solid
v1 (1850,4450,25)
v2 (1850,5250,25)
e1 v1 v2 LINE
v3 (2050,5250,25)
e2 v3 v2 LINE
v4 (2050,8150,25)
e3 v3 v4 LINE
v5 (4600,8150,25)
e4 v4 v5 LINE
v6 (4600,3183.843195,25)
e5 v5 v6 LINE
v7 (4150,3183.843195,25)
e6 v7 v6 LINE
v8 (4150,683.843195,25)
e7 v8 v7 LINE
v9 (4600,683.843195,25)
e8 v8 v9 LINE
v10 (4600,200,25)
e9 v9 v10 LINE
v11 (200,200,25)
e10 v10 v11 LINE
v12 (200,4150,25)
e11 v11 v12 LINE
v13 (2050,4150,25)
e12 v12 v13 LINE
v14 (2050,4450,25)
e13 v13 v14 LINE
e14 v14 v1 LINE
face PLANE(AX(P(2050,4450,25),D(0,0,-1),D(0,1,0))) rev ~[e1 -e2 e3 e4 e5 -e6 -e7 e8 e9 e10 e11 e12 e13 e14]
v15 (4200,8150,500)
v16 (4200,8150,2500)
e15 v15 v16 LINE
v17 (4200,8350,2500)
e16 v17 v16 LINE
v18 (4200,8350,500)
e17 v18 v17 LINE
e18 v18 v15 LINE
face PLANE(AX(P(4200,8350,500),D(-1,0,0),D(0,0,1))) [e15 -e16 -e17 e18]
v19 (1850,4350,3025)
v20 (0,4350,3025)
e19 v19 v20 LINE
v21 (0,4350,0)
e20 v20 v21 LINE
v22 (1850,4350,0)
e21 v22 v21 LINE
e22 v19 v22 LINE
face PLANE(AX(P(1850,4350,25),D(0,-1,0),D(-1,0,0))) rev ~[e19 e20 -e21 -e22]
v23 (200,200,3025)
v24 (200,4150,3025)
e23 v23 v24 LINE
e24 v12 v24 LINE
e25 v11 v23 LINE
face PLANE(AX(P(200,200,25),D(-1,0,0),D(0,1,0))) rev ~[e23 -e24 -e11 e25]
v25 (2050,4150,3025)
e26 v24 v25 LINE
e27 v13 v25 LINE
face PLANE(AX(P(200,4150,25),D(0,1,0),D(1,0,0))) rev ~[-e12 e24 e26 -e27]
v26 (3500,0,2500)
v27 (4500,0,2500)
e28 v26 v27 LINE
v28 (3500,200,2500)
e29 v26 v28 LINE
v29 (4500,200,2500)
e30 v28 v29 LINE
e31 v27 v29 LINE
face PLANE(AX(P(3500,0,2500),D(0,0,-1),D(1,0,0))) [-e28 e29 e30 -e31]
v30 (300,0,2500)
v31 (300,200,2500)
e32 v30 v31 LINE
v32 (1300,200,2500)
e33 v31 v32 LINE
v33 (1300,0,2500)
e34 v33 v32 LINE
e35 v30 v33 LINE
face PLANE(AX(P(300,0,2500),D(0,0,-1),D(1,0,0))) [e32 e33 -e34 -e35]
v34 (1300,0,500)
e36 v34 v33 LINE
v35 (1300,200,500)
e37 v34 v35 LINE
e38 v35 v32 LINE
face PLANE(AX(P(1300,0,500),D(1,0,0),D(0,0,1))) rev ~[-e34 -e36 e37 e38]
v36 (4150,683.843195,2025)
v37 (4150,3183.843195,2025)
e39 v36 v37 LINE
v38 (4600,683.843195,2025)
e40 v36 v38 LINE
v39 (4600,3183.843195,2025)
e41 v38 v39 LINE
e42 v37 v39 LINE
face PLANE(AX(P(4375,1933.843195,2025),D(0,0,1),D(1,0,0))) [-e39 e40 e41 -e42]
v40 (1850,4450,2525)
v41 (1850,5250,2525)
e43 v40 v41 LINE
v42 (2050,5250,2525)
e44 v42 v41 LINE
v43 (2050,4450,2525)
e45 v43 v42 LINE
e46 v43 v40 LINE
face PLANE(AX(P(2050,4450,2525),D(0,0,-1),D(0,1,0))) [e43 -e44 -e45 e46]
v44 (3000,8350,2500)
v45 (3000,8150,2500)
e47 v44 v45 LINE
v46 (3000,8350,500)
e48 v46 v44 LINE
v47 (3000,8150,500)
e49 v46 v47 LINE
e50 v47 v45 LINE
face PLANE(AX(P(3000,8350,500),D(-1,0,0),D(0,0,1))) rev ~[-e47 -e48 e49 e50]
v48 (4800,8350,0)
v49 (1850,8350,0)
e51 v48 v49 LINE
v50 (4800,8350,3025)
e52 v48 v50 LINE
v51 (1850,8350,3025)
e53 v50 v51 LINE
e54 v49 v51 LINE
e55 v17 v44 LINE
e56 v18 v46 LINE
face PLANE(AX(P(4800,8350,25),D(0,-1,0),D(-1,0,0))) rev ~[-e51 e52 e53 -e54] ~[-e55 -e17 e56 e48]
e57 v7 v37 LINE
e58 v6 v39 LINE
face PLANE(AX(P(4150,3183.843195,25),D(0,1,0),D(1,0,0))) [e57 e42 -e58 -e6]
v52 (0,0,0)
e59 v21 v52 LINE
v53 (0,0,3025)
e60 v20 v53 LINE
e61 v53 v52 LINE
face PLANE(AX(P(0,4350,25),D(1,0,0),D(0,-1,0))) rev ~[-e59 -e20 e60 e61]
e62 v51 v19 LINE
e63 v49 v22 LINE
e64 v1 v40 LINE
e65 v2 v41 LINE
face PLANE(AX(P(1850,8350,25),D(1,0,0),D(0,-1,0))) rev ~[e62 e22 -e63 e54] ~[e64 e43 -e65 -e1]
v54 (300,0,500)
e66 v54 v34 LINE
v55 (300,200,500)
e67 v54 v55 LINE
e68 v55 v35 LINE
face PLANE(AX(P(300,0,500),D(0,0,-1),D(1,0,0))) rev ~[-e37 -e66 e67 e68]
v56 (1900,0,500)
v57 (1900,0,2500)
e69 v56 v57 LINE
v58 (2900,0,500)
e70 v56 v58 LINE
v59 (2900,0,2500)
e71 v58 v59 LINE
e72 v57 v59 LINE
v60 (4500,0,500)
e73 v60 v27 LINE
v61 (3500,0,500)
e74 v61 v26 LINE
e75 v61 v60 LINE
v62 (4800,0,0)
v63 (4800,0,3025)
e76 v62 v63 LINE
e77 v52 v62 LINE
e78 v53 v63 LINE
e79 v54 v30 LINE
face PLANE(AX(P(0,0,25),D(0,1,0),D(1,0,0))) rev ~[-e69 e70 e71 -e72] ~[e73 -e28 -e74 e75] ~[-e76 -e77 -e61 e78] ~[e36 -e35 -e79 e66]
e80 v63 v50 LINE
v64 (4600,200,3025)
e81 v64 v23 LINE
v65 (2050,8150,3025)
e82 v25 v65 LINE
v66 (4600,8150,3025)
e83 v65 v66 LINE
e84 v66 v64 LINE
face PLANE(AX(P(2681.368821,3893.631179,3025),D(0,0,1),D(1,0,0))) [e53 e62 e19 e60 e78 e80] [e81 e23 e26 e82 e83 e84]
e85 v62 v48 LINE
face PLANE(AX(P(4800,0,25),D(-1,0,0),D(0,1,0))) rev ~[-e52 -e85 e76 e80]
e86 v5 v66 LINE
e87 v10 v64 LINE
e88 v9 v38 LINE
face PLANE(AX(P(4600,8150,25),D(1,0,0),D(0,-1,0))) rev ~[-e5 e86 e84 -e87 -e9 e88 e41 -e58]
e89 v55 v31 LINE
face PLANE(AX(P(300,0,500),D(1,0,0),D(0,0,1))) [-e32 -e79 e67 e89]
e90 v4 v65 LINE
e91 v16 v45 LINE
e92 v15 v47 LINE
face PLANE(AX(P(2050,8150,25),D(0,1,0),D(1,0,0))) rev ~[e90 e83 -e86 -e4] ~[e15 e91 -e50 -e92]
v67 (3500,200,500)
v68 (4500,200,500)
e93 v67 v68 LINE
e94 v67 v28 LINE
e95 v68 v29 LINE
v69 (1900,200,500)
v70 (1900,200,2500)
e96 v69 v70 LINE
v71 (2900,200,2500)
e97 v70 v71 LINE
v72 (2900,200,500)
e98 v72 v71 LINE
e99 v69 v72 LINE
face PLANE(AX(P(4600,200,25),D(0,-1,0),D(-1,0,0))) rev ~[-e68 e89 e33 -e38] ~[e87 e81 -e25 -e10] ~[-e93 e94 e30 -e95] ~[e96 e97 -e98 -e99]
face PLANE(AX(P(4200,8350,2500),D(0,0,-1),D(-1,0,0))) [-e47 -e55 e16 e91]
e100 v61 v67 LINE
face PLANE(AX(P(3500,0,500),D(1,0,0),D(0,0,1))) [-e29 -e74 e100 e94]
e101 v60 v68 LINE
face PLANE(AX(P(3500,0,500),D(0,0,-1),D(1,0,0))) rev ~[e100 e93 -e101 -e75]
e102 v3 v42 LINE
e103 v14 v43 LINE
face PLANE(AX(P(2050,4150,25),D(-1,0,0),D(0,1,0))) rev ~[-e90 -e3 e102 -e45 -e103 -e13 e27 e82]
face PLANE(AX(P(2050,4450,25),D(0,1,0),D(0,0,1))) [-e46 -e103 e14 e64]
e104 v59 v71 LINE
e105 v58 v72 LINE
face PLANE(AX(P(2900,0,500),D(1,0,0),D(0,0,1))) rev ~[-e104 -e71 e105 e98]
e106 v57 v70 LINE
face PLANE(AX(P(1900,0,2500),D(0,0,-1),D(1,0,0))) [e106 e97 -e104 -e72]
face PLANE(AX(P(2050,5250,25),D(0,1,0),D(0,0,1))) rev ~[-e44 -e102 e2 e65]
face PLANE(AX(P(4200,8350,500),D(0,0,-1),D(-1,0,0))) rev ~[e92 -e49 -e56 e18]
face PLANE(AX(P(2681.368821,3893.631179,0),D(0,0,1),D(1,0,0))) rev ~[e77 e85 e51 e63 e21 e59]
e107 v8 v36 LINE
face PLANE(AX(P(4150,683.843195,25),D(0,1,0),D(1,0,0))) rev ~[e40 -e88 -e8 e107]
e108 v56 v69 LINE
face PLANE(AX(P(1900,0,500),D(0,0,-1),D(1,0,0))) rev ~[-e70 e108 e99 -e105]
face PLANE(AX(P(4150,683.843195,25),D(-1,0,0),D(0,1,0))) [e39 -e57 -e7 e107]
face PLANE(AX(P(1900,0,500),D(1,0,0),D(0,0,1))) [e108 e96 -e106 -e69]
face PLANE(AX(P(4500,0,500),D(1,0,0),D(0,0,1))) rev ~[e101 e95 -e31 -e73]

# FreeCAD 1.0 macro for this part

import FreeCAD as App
import Part
import Sketcher

doc = App.newDocument("Part")
body = doc.addObject("PartDesign::Body", "Body")

sketch1 = doc.addObject("Sketcher::SketchObject", "Sketch")
body.addObject(sketch1)
sketch1.AttachmentSupport = (doc.XY_Plane, [""])
sketch1.MapMode = "FlatFace"
sketch1.addGeometry(Part.LineSegment(App.Vector(0, 4350, 0), App.Vector(0, 0, 0)), False)
sketch1.addGeometry(Part.LineSegment(App.Vector(0, 0, 0), App.Vector(4800, 0, 0)), False)
sketch1.addGeometry(Part.LineSegment(App.Vector(4800, 0, 0), App.Vector(4800, 8350, 0)), False)
sketch1.addGeometry(Part.LineSegment(App.Vector(4800, 8350, 0), App.Vector(1850, 8350, 0)), False)
sketch1.addGeometry(Part.LineSegment(App.Vector(1850, 8350, 0), App.Vector(1850, 4350, 0)), False)
sketch1.addGeometry(Part.LineSegment(App.Vector(1850, 4350, 0), App.Vector(0, 4350, 0)), False)
sketch1.addConstraint(Sketcher.Constraint("Coincident", 0, 2, 1, 1))
sketch1.addConstraint(Sketcher.Constraint("Coincident", 1, 2, 2, 1))
sketch1.addConstraint(Sketcher.Constraint("Coincident", 2, 2, 3, 1))
sketch1.addConstraint(Sketcher.Constraint("Coincident", 3, 2, 4, 1))
sketch1.addConstraint(Sketcher.Constraint("Coincident", 4, 2, 5, 1))
sketch1.addConstraint(Sketcher.Constraint("Coincident", 5, 2, 0, 1))
sketch1.addConstraint(Sketcher.Constraint("Vertical", 0))
sketch1.addConstraint(Sketcher.Constraint("Horizontal", 1))
sketch1.addConstraint(Sketcher.Constraint("Vertical", 2))
sketch1.addConstraint(Sketcher.Constraint("Horizontal", 3))
sketch1.addConstraint(Sketcher.Constraint("Vertical", 4))
sketch1.addConstraint(Sketcher.Constraint("Horizontal", 5))
sketch1.addConstraint(Sketcher.Constraint("Coincident", 0, 2, -1, 1))
sketch1.addConstraint(Sketcher.Constraint("DistanceX", 1, 1, 1, 2, 4800.0))
sketch1.addConstraint(Sketcher.Constraint("DistanceX", 3, 2, 3, 1, 2950.0))
sketch1.addConstraint(Sketcher.Constraint("DistanceY", 0, 2, 0, 1, 4350.0))
sketch1.addConstraint(Sketcher.Constraint("DistanceY", 2, 1, 2, 2, 8350.0))
pad1 = doc.addObject("PartDesign::Pad", "Pad")
body.addObject(pad1)
pad1.Profile = sketch1
pad1.Length = 25

sketch2 = doc.addObject("Sketcher::SketchObject", "Sketch001")
body.addObject(sketch2)
sketch2.AttachmentSupport = (doc.XY_Plane, [""])
sketch2.MapMode = "FlatFace"
sketch2.AttachmentOffset = App.Placement(App.Vector(0, 0, 25), App.Rotation())
sketch2.addGeometry(Part.LineSegment(App.Vector(0, 0, 0), App.Vector(4800, 0, 0)), False)
sketch2.addGeometry(Part.LineSegment(App.Vector(4800, 0, 0), App.Vector(4800, 8350, 0)), False)
sketch2.addGeometry(Part.LineSegment(App.Vector(4800, 8350, 0), App.Vector(1850, 8350, 0)), False)
sketch2.addGeometry(Part.LineSegment(App.Vector(1850, 8350, 0), App.Vector(1850, 4350, 0)), False)
sketch2.addGeometry(Part.LineSegment(App.Vector(1850, 4350, 0), App.Vector(0, 4350, 0)), False)
sketch2.addGeometry(Part.LineSegment(App.Vector(0, 4350, 0), App.Vector(0, 0, 0)), False)
sketch2.addGeometry(Part.LineSegment(App.Vector(2050, 8150, 0), App.Vector(4600, 8150, 0)), False)
sketch2.addGeometry(Part.LineSegment(App.Vector(4600, 8150, 0), App.Vector(4600, 200, 0)), False)
sketch2.addGeometry(Part.LineSegment(App.Vector(4600, 200, 0), App.Vector(200, 200, 0)), False)
sketch2.addGeometry(Part.LineSegment(App.Vector(200, 200, 0), App.Vector(200, 4150, 0)), False)
sketch2.addGeometry(Part.LineSegment(App.Vector(200, 4150, 0), App.Vector(2050, 4150, 0)), False)
sketch2.addGeometry(Part.LineSegment(App.Vector(2050, 4150, 0), App.Vector(2050, 8150, 0)), False)
sketch2.addConstraint(Sketcher.Constraint("Coincident", 0, 2, 1, 1))
sketch2.addConstraint(Sketcher.Constraint("Coincident", 1, 2, 2, 1))
sketch2.addConstraint(Sketcher.Constraint("Coincident", 2, 2, 3, 1))
sketch2.addConstraint(Sketcher.Constraint("Coincident", 3, 2, 4, 1))
sketch2.addConstraint(Sketcher.Constraint("Coincident", 4, 2, 5, 1))
sketch2.addConstraint(Sketcher.Constraint("Coincident", 5, 2, 0, 1))
sketch2.addConstraint(Sketcher.Constraint("Coincident", 6, 2, 7, 1))
sketch2.addConstraint(Sketcher.Constraint("Coincident", 7, 2, 8, 1))
sketch2.addConstraint(Sketcher.Constraint("Coincident", 8, 2, 9, 1))
sketch2.addConstraint(Sketcher.Constraint("Coincident", 9, 2, 10, 1))
sketch2.addConstraint(Sketcher.Constraint("Coincident", 10, 2, 11, 1))
sketch2.addConstraint(Sketcher.Constraint("Coincident", 11, 2, 6, 1))
sketch2.addConstraint(Sketcher.Constraint("Horizontal", 0))
sketch2.addConstraint(Sketcher.Constraint("Vertical", 1))
sketch2.addConstraint(Sketcher.Constraint("Horizontal", 2))
sketch2.addConstraint(Sketcher.Constraint("Vertical", 3))
sketch2.addConstraint(Sketcher.Constraint("Horizontal", 4))
sketch2.addConstraint(Sketcher.Constraint("Vertical", 5))
sketch2.addConstraint(Sketcher.Constraint("Horizontal", 6))
sketch2.addConstraint(Sketcher.Constraint("Vertical", 7))
sketch2.addConstraint(Sketcher.Constraint("Horizontal", 8))
sketch2.addConstraint(Sketcher.Constraint("Vertical", 9))
sketch2.addConstraint(Sketcher.Constraint("Horizontal", 10))
sketch2.addConstraint(Sketcher.Constraint("Vertical", 11))
sketch2.addConstraint(Sketcher.Constraint("Coincident", 5, 2, -1, 1))
sketch2.addConstraint(Sketcher.Constraint("Equal", 4, 10))
sketch2.addConstraint(Sketcher.Constraint("Equal", 3, 11))
sketch2.addConstraint(Sketcher.Constraint("DistanceX", 0, 1, 0, 2, 4800.0))
sketch2.addConstraint(Sketcher.Constraint("DistanceX", 2, 2, 2, 1, 2950.0))
sketch2.addConstraint(Sketcher.Constraint("DistanceX", 6, 1, 6, 2, 2550.0))
sketch2.addConstraint(Sketcher.Constraint("DistanceY", 1, 1, 1, 2, 8350.0))
sketch2.addConstraint(Sketcher.Constraint("DistanceY", 3, 2, 3, 1, 4000.0))
sketch2.addConstraint(Sketcher.Constraint("DistanceY", 7, 2, 7, 1, 7950.0))
sketch2.addConstraint(Sketcher.Constraint("DistanceX", -1, 1, 6, 2, 4600.0))
sketch2.addConstraint(Sketcher.Constraint("DistanceY", -1, 1, 6, 2, 8150.0))
pad2 = doc.addObject("PartDesign::Pad", "Pad001")
body.addObject(pad2)
pad2.Profile = sketch2
pad2.Length = 3000

sketch3 = doc.addObject("Sketcher::SketchObject", "Sketch002")
body.addObject(sketch3)
sketch3.AttachmentSupport = (doc.XZ_Plane, [""])
sketch3.MapMode = "FlatFace"
sketch3.addGeometry(Part.LineSegment(App.Vector(300, 2500, 0), App.Vector(300, 500, 0)), False)
sketch3.addGeometry(Part.LineSegment(App.Vector(300, 500, 0), App.Vector(1300, 500, 0)), False)
sketch3.addGeometry(Part.LineSegment(App.Vector(1300, 500, 0), App.Vector(1300, 2500, 0)), False)
sketch3.addGeometry(Part.LineSegment(App.Vector(1300, 2500, 0), App.Vector(300, 2500, 0)), False)
sketch3.addGeometry(Part.LineSegment(App.Vector(1900, 2500, 0), App.Vector(1900, 500, 0)), False)
sketch3.addGeometry(Part.LineSegment(App.Vector(1900, 500, 0), App.Vector(2900, 500, 0)), False)
sketch3.addGeometry(Part.LineSegment(App.Vector(2900, 500, 0), App.Vector(2900, 2500, 0)), False)
sketch3.addGeometry(Part.LineSegment(App.Vector(2900, 2500, 0), App.Vector(1900, 2500, 0)), False)
sketch3.addGeometry(Part.LineSegment(App.Vector(3500, 2500, 0), App.Vector(3500, 500, 0)), False)
sketch3.addGeometry(Part.LineSegment(App.Vector(3500, 500, 0), App.Vector(4500, 500, 0)), False)
sketch3.addGeometry(Part.LineSegment(App.Vector(4500, 500, 0), App.Vector(4500, 2500, 0)), False)
sketch3.addGeometry(Part.LineSegment(App.Vector(4500, 2500, 0), App.Vector(3500, 2500, 0)), False)
sketch3.addConstraint(Sketcher.Constraint("Coincident", 0, 2, 1, 1))
sketch3.addConstraint(Sketcher.Constraint("Coincident", 1, 2, 2, 1))
sketch3.addConstraint(Sketcher.Constraint("Coincident", 2, 2, 3, 1))
sketch3.addConstraint(Sketcher.Constraint("Coincident", 3, 2, 0, 1))
sketch3.addConstraint(Sketcher.Constraint("Coincident", 4, 2, 5, 1))
sketch3.addConstraint(Sketcher.Constraint("Coincident", 5, 2, 6, 1))
sketch3.addConstraint(Sketcher.Constraint("Coincident", 6, 2, 7, 1))
sketch3.addConstraint(Sketcher.Constraint("Coincident", 7, 2, 4, 1))
sketch3.addConstraint(Sketcher.Constraint("Coincident", 8, 2, 9, 1))
sketch3.addConstraint(Sketcher.Constraint("Coincident", 9, 2, 10, 1))
sketch3.addConstraint(Sketcher.Constraint("Coincident", 10, 2, 11, 1))
sketch3.addConstraint(Sketcher.Constraint("Coincident", 11, 2, 8, 1))
sketch3.addConstraint(Sketcher.Constraint("Vertical", 0))
sketch3.addConstraint(Sketcher.Constraint("Horizontal", 1))
sketch3.addConstraint(Sketcher.Constraint("Vertical", 2))
sketch3.addConstraint(Sketcher.Constraint("Horizontal", 3))
sketch3.addConstraint(Sketcher.Constraint("Vertical", 4))
sketch3.addConstraint(Sketcher.Constraint("Horizontal", 5))
sketch3.addConstraint(Sketcher.Constraint("Vertical", 6))
sketch3.addConstraint(Sketcher.Constraint("Horizontal", 7))
sketch3.addConstraint(Sketcher.Constraint("Vertical", 8))
sketch3.addConstraint(Sketcher.Constraint("Horizontal", 9))
sketch3.addConstraint(Sketcher.Constraint("Vertical", 10))
sketch3.addConstraint(Sketcher.Constraint("Horizontal", 11))
sketch3.addConstraint(Sketcher.Constraint("Horizontal", 1, 2, 4, 2))
sketch3.addConstraint(Sketcher.Constraint("Horizontal", 3, 2, 6, 2))
sketch3.addConstraint(Sketcher.Constraint("Horizontal", 5, 2, 8, 2))
sketch3.addConstraint(Sketcher.Constraint("Horizontal", 7, 2, 10, 2))
sketch3.addConstraint(Sketcher.Constraint("Equal", 3, 5))
sketch3.addConstraint(Sketcher.Constraint("Equal", 7, 9))
sketch3.addConstraint(Sketcher.Constraint("DistanceX", 1, 1, 1, 2, 1000.0))
sketch3.addConstraint(Sketcher.Constraint("DistanceY", 0, 2, 0, 1, 2000.0))
sketch3.addConstraint(Sketcher.Constraint("DistanceX", -1, 1, 0, 2, 300.0))
sketch3.addConstraint(Sketcher.Constraint("DistanceY", -1, 1, 0, 2, 500.0))
sketch3.addConstraint(Sketcher.Constraint("DistanceX", -1, 1, 4, 2, 1900.0))
sketch3.addConstraint(Sketcher.Constraint("DistanceX", -1, 1, 8, 2, 3500.0))
pocket1 = doc.addObject("PartDesign::Pocket", "Pocket")
body.addObject(pocket1)
pocket1.Profile = sketch3
pocket1.Length = 200

sketch4 = doc.addObject("Sketcher::SketchObject", "Sketch003")
body.addObject(sketch4)
sketch4.AttachmentSupport = (doc.XZ_Plane, [""])
sketch4.MapMode = "FlatFace"
sketch4.AttachmentOffset = App.Placement(App.Vector(0, 0, -8350), App.Rotation())
sketch4.addGeometry(Part.LineSegment(App.Vector(4200, 2500, 0), App.Vector(4200, 500, 0)), False)
sketch4.addGeometry(Part.LineSegment(App.Vector(4200, 500, 0), App.Vector(3000, 500, 0)), False)
sketch4.addGeometry(Part.LineSegment(App.Vector(3000, 500, 0), App.Vector(3000, 2500, 0)), False)
sketch4.addGeometry(Part.LineSegment(App.Vector(3000, 2500, 0), App.Vector(4200, 2500, 0)), False)
sketch4.addConstraint(Sketcher.Constraint("Coincident", 0, 2, 1, 1))
sketch4.addConstraint(Sketcher.Constraint("Coincident", 1, 2, 2, 1))
sketch4.addConstraint(Sketcher.Constraint("Coincident", 2, 2, 3, 1))
sketch4.addConstraint(Sketcher.Constraint("Coincident", 3, 2, 0, 1))
sketch4.addConstraint(Sketcher.Constraint("Vertical", 0))
sketch4.addConstraint(Sketcher.Constraint("Horizontal", 1))
sketch4.addConstraint(Sketcher.Constraint("Vertical", 2))
sketch4.addConstraint(Sketcher.Constraint("Horizontal", 3))
sketch4.addConstraint(Sketcher.Constraint("DistanceX", 1, 2, 1, 1, 1200.0))
sketch4.addConstraint(Sketcher.Constraint("DistanceY", 0, 2, 0, 1, 2000.0))
sketch4.addConstraint(Sketcher.Constraint("DistanceX", -1, 1, 0, 2, 4200.0))
sketch4.addConstraint(Sketcher.Constraint("DistanceY", -1, 1, 0, 2, 500.0))
pocket2 = doc.addObject("PartDesign::Pocket", "Pocket001")
body.addObject(pocket2)
pocket2.Profile = sketch4
pocket2.Length = 200
pocket2.Reversed = True

sketch5 = doc.addObject("Sketcher::SketchObject", "Sketch004")
body.addObject(sketch5)
sketch5.AttachmentSupport = (doc.YZ_Plane, [""])
sketch5.MapMode = "FlatFace"
sketch5.AttachmentOffset = App.Placement(App.Vector(0, 0, 2050), App.Rotation())
sketch5.addGeometry(Part.LineSegment(App.Vector(4450, 2525, 0), App.Vector(4450, 25, 0)), False)
sketch5.addGeometry(Part.LineSegment(App.Vector(4450, 25, 0), App.Vector(5250, 25, 0)), False)
sketch5.addGeometry(Part.LineSegment(App.Vector(5250, 25, 0), App.Vector(5250, 2525, 0)), False)
sketch5.addGeometry(Part.LineSegment(App.Vector(5250, 2525, 0), App.Vector(4450, 2525, 0)), False)
sketch5.addConstraint(Sketcher.Constraint("Coincident", 0, 2, 1, 1))
sketch5.addConstraint(Sketcher.Constraint("Coincident", 1, 2, 2, 1))
sketch5.addConstraint(Sketcher.Constraint("Coincident", 2, 2, 3, 1))
sketch5.addConstraint(Sketcher.Constraint("Coincident", 3, 2, 0, 1))
sketch5.addConstraint(Sketcher.Constraint("Vertical", 0))
sketch5.addConstraint(Sketcher.Constraint("Horizontal", 1))
sketch5.addConstraint(Sketcher.Constraint("Vertical", 2))
sketch5.addConstraint(Sketcher.Constraint("Horizontal", 3))
sketch5.addConstraint(Sketcher.Constraint("DistanceX", 1, 1, 1, 2, 800.0))
sketch5.addConstraint(Sketcher.Constraint("DistanceY", 0, 2, 0, 1, 2500.0))
sketch5.addConstraint(Sketcher.Constraint("DistanceX", -1, 1, 0, 2, 4450.0))
sketch5.addConstraint(Sketcher.Constraint("DistanceY", -1, 1, 0, 2, 25.0))
pocket3 = doc.addObject("PartDesign::Pocket", "Pocket002")
body.addObject(pocket3)
pocket3.Profile = sketch5
pocket3.Type = "ThroughAll"

sketch6 = doc.addObject("Sketcher::SketchObject", "Sketch005")
body.addObject(sketch6)
sketch6.AttachmentSupport = (doc.XY_Plane, [""])
sketch6.MapMode = "FlatFace"
sketch6.AttachmentOffset = App.Placement(App.Vector(0, 0, 25), App.Rotation())
sketch6.addGeometry(Part.LineSegment(App.Vector(4150, 3184, 0), App.Vector(4150, 684, 0)), False)
sketch6.addGeometry(Part.LineSegment(App.Vector(4150, 684, 0), App.Vector(4600, 684, 0)), False)
sketch6.addGeometry(Part.LineSegment(App.Vector(4600, 684, 0), App.Vector(4600, 3184, 0)), False)
sketch6.addGeometry(Part.LineSegment(App.Vector(4600, 3184, 0), App.Vector(4150, 3184, 0)), False)
sketch6.addConstraint(Sketcher.Constraint("Coincident", 0, 2, 1, 1))
sketch6.addConstraint(Sketcher.Constraint("Coincident", 1, 2, 2, 1))
sketch6.addConstraint(Sketcher.Constraint("Coincident", 2, 2, 3, 1))
sketch6.addConstraint(Sketcher.Constraint("Coincident", 3, 2, 0, 1))
sketch6.addConstraint(Sketcher.Constraint("Vertical", 0))
sketch6.addConstraint(Sketcher.Constraint("Horizontal", 1))
sketch6.addConstraint(Sketcher.Constraint("Vertical", 2))
sketch6.addConstraint(Sketcher.Constraint("Horizontal", 3))
sketch6.addConstraint(Sketcher.Constraint("DistanceX", 1, 1, 1, 2, 450.0))
sketch6.addConstraint(Sketcher.Constraint("DistanceY", 0, 2, 0, 1, 2500.0))
sketch6.addConstraint(Sketcher.Constraint("DistanceX", -1, 1, 0, 2, 4150.0))
sketch6.addConstraint(Sketcher.Constraint("DistanceY", -1, 1, 0, 2, 683.843195))
pad3 = doc.addObject("PartDesign::Pad", "Pad002")
body.addObject(pad3)
pad3.Profile = sketch6
pad3.Length = 2000

doc.recompute()
